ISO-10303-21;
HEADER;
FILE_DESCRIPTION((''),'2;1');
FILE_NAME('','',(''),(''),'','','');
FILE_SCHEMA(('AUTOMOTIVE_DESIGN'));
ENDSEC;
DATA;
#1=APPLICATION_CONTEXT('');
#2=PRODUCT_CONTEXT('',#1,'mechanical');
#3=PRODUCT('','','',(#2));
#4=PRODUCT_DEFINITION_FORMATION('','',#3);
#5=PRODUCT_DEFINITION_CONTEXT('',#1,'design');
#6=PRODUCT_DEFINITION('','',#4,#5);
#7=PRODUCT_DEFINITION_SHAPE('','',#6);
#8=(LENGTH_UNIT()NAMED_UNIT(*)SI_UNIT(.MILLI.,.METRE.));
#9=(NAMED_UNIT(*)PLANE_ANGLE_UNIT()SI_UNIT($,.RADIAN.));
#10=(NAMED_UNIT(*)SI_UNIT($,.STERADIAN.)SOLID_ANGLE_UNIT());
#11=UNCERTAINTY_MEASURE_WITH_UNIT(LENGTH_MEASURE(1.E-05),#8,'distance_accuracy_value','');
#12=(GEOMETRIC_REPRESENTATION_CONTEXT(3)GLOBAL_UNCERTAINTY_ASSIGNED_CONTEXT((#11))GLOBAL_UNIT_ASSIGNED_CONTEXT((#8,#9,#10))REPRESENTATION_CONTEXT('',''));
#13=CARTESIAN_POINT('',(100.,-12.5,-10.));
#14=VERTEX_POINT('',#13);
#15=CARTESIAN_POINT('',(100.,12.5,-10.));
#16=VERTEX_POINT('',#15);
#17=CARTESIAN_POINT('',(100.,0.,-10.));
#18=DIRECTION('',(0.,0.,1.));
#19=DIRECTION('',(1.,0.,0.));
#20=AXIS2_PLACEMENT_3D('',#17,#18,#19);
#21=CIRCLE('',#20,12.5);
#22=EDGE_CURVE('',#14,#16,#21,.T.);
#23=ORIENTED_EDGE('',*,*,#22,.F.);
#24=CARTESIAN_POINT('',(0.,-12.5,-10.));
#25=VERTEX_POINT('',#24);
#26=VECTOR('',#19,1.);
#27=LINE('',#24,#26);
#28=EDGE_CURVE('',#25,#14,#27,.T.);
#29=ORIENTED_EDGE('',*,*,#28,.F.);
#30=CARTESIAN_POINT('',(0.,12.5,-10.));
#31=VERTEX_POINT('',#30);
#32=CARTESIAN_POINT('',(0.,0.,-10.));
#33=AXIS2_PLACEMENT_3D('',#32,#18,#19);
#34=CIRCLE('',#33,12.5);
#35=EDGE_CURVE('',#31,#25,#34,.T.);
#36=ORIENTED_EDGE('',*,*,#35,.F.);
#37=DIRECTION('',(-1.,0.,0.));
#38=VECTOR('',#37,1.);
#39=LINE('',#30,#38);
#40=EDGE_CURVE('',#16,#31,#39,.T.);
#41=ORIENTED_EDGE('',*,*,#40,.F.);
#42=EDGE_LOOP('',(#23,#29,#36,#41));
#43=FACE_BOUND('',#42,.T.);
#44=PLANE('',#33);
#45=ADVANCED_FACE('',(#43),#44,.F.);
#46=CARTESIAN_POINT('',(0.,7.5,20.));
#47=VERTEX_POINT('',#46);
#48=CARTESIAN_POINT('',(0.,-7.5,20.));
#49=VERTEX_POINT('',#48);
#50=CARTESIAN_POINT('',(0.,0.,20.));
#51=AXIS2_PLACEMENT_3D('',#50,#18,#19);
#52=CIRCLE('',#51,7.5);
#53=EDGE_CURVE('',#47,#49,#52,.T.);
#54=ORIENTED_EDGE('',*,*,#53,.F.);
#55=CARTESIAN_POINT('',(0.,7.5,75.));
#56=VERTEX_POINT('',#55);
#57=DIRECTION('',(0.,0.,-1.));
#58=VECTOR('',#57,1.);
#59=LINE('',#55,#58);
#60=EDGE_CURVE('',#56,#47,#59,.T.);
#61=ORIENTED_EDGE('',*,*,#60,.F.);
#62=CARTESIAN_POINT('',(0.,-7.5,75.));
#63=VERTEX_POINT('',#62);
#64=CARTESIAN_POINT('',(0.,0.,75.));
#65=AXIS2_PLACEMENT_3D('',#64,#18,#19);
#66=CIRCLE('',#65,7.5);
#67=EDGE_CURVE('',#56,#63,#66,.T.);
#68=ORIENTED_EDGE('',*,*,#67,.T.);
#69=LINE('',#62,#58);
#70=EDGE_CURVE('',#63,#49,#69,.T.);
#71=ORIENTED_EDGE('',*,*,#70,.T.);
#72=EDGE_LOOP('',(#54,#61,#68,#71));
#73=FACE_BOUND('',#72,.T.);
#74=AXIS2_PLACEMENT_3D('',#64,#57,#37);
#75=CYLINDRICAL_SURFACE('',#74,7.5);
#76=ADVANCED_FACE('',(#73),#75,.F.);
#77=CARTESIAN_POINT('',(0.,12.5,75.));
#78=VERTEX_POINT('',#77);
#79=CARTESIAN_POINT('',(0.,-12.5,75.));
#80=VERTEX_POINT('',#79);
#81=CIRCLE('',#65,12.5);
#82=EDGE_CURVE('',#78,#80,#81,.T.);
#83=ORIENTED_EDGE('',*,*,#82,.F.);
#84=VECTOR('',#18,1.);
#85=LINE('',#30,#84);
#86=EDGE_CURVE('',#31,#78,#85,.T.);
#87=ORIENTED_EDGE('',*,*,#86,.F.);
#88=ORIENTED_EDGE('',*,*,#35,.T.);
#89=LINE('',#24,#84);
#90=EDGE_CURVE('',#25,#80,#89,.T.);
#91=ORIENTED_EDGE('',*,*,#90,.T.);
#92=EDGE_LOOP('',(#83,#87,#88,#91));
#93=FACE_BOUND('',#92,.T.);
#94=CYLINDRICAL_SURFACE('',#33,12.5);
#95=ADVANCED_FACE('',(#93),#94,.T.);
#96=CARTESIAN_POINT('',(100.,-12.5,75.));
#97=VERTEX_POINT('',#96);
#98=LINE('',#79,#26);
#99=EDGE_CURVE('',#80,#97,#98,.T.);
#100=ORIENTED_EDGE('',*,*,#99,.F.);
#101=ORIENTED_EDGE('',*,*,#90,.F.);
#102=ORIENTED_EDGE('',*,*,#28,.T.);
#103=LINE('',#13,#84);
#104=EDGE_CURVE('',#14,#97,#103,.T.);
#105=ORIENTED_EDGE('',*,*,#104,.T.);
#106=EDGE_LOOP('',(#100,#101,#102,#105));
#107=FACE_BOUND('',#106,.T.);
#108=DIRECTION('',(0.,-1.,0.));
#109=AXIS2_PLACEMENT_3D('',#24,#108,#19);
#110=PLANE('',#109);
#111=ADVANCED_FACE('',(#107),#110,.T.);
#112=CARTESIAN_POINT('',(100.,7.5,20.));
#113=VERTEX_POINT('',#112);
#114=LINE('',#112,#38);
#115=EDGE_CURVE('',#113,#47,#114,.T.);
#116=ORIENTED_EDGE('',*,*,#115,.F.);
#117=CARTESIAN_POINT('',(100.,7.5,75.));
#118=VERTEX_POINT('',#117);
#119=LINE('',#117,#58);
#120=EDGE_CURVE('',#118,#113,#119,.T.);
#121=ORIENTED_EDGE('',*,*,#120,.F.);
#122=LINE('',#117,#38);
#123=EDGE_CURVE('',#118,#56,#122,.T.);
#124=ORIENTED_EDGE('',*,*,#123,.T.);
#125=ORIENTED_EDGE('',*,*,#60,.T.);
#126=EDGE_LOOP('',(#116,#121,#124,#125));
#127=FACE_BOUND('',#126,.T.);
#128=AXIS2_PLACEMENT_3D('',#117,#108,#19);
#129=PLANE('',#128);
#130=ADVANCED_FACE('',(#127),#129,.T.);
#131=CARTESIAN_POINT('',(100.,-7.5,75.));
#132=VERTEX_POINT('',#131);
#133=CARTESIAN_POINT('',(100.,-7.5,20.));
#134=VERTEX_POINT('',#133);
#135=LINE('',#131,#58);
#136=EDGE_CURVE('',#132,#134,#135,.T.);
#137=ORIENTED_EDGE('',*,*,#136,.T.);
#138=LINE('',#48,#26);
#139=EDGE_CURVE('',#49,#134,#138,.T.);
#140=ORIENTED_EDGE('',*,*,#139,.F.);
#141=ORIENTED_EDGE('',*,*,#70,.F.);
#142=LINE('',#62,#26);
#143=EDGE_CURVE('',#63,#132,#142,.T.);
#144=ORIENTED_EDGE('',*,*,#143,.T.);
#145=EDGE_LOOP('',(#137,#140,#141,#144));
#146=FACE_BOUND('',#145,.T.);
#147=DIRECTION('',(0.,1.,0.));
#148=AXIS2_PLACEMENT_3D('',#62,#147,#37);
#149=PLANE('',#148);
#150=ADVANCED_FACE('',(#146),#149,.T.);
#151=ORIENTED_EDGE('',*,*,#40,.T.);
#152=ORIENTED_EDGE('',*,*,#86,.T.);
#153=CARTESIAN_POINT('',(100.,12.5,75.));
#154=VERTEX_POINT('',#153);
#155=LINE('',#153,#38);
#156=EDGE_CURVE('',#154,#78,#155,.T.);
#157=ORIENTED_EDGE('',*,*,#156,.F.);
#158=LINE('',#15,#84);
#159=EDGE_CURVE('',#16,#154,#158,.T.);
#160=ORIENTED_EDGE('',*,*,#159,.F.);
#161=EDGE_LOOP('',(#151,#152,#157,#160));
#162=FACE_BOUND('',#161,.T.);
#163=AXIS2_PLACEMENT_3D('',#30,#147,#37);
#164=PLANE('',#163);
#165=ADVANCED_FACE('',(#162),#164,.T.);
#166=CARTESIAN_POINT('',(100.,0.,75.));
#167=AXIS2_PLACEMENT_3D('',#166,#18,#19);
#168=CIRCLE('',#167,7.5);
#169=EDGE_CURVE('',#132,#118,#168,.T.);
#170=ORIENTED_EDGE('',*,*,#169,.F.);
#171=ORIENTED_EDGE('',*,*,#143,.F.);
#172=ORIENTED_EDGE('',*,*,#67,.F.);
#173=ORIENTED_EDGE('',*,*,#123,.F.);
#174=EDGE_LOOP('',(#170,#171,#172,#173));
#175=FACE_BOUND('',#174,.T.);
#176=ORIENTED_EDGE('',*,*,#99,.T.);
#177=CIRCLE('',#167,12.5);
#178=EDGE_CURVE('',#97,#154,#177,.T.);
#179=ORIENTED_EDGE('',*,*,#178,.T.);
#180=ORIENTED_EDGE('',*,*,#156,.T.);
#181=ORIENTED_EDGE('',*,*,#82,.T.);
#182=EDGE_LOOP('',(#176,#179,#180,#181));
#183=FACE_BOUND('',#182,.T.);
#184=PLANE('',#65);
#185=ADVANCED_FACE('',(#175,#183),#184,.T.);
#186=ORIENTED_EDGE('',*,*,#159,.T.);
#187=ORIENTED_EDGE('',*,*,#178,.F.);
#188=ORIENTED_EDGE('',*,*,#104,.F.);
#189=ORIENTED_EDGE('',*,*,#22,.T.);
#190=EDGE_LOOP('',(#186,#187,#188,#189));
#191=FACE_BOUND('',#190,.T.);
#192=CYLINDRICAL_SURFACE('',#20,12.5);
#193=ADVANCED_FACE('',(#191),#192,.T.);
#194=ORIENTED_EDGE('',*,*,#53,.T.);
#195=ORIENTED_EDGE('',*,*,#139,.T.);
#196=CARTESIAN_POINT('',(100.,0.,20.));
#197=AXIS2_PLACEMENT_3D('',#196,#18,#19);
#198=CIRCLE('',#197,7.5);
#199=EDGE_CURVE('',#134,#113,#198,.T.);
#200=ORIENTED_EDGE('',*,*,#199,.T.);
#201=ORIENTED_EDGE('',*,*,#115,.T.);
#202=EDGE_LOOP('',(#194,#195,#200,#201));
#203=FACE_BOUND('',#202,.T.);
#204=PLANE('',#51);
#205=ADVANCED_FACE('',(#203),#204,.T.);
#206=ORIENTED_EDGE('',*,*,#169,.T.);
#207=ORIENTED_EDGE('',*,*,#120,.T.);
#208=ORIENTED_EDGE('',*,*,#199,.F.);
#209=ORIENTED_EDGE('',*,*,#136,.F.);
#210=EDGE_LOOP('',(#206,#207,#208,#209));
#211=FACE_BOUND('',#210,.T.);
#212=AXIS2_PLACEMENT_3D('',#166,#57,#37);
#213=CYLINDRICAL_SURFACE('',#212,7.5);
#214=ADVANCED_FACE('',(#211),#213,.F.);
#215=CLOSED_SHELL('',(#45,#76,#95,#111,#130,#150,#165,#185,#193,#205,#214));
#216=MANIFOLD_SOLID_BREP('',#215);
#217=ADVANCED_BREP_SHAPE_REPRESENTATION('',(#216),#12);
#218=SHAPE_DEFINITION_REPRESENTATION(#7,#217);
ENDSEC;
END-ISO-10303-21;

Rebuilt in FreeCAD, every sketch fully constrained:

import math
import FreeCAD as App
import Part
import Sketcher
from FreeCAD import Vector

doc = App.newDocument("Part")
body = doc.addObject("PartDesign::Body", "Body")

sketch1 = doc.addObject("Sketcher::SketchObject", "Sketch")
body.addObject(sketch1)
sketch1.AttachmentSupport = (doc.XY_Plane, [""])
sketch1.MapMode = "FlatFace"
sketch1.addGeometry(Part.LineSegment(Vector(100, 12, 0), Vector(0, 12, 0)), False)
sketch1.addGeometry(Part.ArcOfCircle(Part.Circle(Vector(0, 0, 0), Vector(0, 0, 1), 12), math.radians(90), math.radians(270)), False)
sketch1.addGeometry(Part.LineSegment(Vector(0, -12, 0), Vector(100, -12, 0)), False)
sketch1.addGeometry(Part.ArcOfCircle(Part.Circle(Vector(100, 0, 0), Vector(0, 0, 1), 12), math.radians(-90), math.radians(90)), False)
sketch1.addConstraint(Sketcher.Constraint("Tangent", 0, 2, 1, 1))
sketch1.addConstraint(Sketcher.Constraint("Tangent", 1, 2, 2, 1))
sketch1.addConstraint(Sketcher.Constraint("Tangent", 2, 2, 3, 1))
sketch1.addConstraint(Sketcher.Constraint("Tangent", 3, 2, 0, 1))
sketch1.addConstraint(Sketcher.Constraint("Horizontal", 0))
sketch1.addConstraint(Sketcher.Constraint("Horizontal", 2))
sketch1.addConstraint(Sketcher.Constraint("Coincident", 1, 3, -1, 1))
sketch1.addConstraint(Sketcher.Constraint("Radius", 1, 12.5))
sketch1.addConstraint(Sketcher.Constraint("DistanceX", 0, 2, 0, 1, 100.0))
pad1 = doc.addObject("PartDesign::Pad", "Pad")
body.addObject(pad1)
pad1.Profile = sketch1
pad1.Type = "TwoLengths"
pad1.Length = 20
pad1.Length2 = 10

sketch2 = doc.addObject("Sketcher::SketchObject", "Sketch001")
body.addObject(sketch2)
sketch2.AttachmentSupport = (doc.XY_Plane, [""])
sketch2.MapMode = "FlatFace"
sketch2.AttachmentOffset = App.Placement(Vector(0, 0, 20), App.Rotation())
sketch2.addGeometry(Part.LineSegment(Vector(100, 12, 0), Vector(0, 12, 0)), False)
sketch2.addGeometry(Part.ArcOfCircle(Part.Circle(Vector(0, 0, 0), Vector(0, 0, 1), 12), math.radians(90), math.radians(270)), False)
sketch2.addGeometry(Part.LineSegment(Vector(0, -12, 0), Vector(100, -12, 0)), False)
sketch2.addGeometry(Part.ArcOfCircle(Part.Circle(Vector(100, 0, 0), Vector(0, 0, 1), 12), math.radians(-90), math.radians(90)), False)
sketch2.addGeometry(Part.LineSegment(Vector(0, 8, 0), Vector(100, 8, 0)), False)
sketch2.addGeometry(Part.ArcOfCircle(Part.Circle(Vector(100, 0, 0), Vector(0, 0, 1), 8), math.radians(-90), math.radians(90)), False)
sketch2.addGeometry(Part.LineSegment(Vector(100, -8, 0), Vector(0, -8, 0)), False)
sketch2.addGeometry(Part.ArcOfCircle(Part.Circle(Vector(0, 0, 0), Vector(0, 0, 1), 8), math.radians(90), math.radians(270)), False)
sketch2.addConstraint(Sketcher.Constraint("Tangent", 0, 2, 1, 1))
sketch2.addConstraint(Sketcher.Constraint("Tangent", 1, 2, 2, 1))
sketch2.addConstraint(Sketcher.Constraint("Tangent", 2, 2, 3, 1))
sketch2.addConstraint(Sketcher.Constraint("Tangent", 3, 2, 0, 1))
sketch2.addConstraint(Sketcher.Constraint("Tangent", 4, 2, 5, 2))
sketch2.addConstraint(Sketcher.Constraint("Tangent", 5, 1, 6, 1))
sketch2.addConstraint(Sketcher.Constraint("Tangent", 6, 2, 7, 2))
sketch2.addConstraint(Sketcher.Constraint("Tangent", 7, 1, 4, 1))
sketch2.addConstraint(Sketcher.Constraint("Horizontal", 0))
sketch2.addConstraint(Sketcher.Constraint("Horizontal", 2))
sketch2.addConstraint(Sketcher.Constraint("Horizontal", 4))
sketch2.addConstraint(Sketcher.Constraint("Horizontal", 6))
sketch2.addConstraint(Sketcher.Constraint("Coincident", 1, 3, -1, 1))
sketch2.addConstraint(Sketcher.Constraint("Coincident", 7, 3, -1, 1))
sketch2.addConstraint(Sketcher.Constraint("Vertical", 5, 3, 2, 2))
sketch2.addConstraint(Sketcher.Constraint("Radius", 1, 12.5))
sketch2.addConstraint(Sketcher.Constraint("Radius", 5, 7.5))
sketch2.addConstraint(Sketcher.Constraint("DistanceX", 0, 2, 0, 1, 100.0))
pad2 = doc.addObject("PartDesign::Pad", "Pad001")
body.addObject(pad2)
pad2.Profile = sketch2
pad2.Length = 55

doc.recompute()
